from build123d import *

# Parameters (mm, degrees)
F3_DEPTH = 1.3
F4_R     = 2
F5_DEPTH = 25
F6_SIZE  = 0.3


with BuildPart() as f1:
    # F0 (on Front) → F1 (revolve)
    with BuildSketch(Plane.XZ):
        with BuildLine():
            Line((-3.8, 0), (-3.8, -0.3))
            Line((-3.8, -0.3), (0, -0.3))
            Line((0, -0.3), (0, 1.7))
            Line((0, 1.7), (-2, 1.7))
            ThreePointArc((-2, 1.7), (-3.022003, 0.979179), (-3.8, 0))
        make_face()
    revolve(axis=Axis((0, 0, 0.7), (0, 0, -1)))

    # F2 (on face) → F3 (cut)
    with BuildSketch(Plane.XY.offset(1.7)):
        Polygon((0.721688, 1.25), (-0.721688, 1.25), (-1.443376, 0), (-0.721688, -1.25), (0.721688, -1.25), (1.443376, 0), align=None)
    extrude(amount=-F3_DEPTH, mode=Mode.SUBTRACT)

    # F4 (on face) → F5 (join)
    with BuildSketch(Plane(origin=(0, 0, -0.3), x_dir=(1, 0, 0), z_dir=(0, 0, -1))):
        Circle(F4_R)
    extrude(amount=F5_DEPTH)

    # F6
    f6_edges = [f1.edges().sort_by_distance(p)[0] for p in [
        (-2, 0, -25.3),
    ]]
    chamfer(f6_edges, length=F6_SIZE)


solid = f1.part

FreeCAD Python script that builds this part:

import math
import FreeCAD as App
import Part
import Sketcher
Q = App.Units.Quantity


def edges_at(feature, points):
    """Names of the edges that pass closest to the given points."""
    edges = feature.Shape.Edges
    near = lambda p: min(range(len(edges)), key=lambda i: edges[i].distToShape(Part.Vertex(*p))[0])
    return sorted({f"Edge{near(p) + 1}" for p in points})


def add_polygon(sketch, points):
    """Adds a closed chain of lines whose ends are joined by coincident constraints."""
    first, n = sketch.GeometryCount, len(points)
    for a, b in zip(points, points[1:] + points[:1]):
        sketch.addGeometry(Part.LineSegment(App.Vector(*a, 0), App.Vector(*b, 0)), False)
    for i in range(n):
        sketch.addConstraint(Sketcher.Constraint("Coincident", first + i, 2, first + (i + 1) % n, 1))

doc = App.newDocument("Part")
params = doc.addObject("Spreadsheet::Sheet", "Params")
for row, (alias, value) in enumerate([
    ("sketch1_width", "2 mm"),
    ("sketch1_width2", "3.8 mm"),
    ("sketch1_height", "0.3 mm"),
    ("revolution_angle", "360 deg"),
    ("pocket1_length", "1.3 mm"),
    ("sketch3_diameter", "4 mm"),
    ("pad1_length", "25 mm"),
    ("chamfer_size", "0.3 mm"),
], start=1):
    params.set(f"A{row}", alias)
    params.set(f"B{row}", "=" + value)
    params.setAlias(f"B{row}", alias)

body = doc.addObject("PartDesign::Body", "Body")

sketch1 = doc.addObject("Sketcher::SketchObject", "Sketch")
body.addObject(sketch1)
sketch1.AttachmentSupport = (doc.XZ_Plane, [""])
sketch1.MapMode = "FlatFace"
sketch1.addGeometry(Part.LineSegment(App.Vector(-3.8, 0, 0), App.Vector(-3.8, -0.3, 0)), False)
sketch1.addGeometry(Part.LineSegment(App.Vector(-3.8, -0.3, 0), App.Vector(0, -0.3, 0)), False)
sketch1.addGeometry(Part.LineSegment(App.Vector(0, -0.3, 0), App.Vector(0, 1.7, 0)), False)
sketch1.addGeometry(Part.LineSegment(App.Vector(0, 1.7, 0), App.Vector(-2, 1.7, 0)), False)
sketch1.addGeometry(Part.ArcOfCircle(Part.Circle(App.Vector(0, -2.22, 0), App.Vector(0, 0, 1), 4.4), math.radians(117), math.radians(150)), False)
sketch1.addConstraint(Sketcher.Constraint("Coincident", 0, 2, 1, 1))
sketch1.addConstraint(Sketcher.Constraint("Coincident", 1, 2, 2, 1))
sketch1.addConstraint(Sketcher.Constraint("Coincident", 2, 2, 3, 1))
sketch1.addConstraint(Sketcher.Constraint("Coincident", 3, 2, 4, 1))
sketch1.addConstraint(Sketcher.Constraint("Coincident", 4, 2, 0, 1))
sketch1.addConstraint(Sketcher.Constraint("Vertical", 0))
sketch1.addConstraint(Sketcher.Constraint("Horizontal", 1))
sketch1.addConstraint(Sketcher.Constraint("Vertical", 2))
sketch1.addConstraint(Sketcher.Constraint("Horizontal", 3))
sketch1.addConstraint(Sketcher.Constraint("PointOnObject", 4, 3, -2))
sketch1.addConstraint(Sketcher.Constraint("PointOnObject", 1, 2, -2))
sketch1.addConstraint(Sketcher.Constraint("PointOnObject", 4, 2, -1))
sketch1.addConstraint(Sketcher.Constraint("Equal", 3, 2))
sketch1.addConstraint(Sketcher.Constraint("DistanceX", 3, 2, 3, 1, Q("2 mm")))
sketch1.addConstraint(Sketcher.Constraint("DistanceX", 1, 1, 1, 2, Q("3.8 mm")))
sketch1.addConstraint(Sketcher.Constraint("DistanceY", 0, 2, 0, 1, Q("0.3 mm")))
sketch1.setExpression("Constraints[13]", "Params.sketch1_width")
sketch1.setExpression("Constraints[14]", "Params.sketch1_width2")
sketch1.setExpression("Constraints[15]", "Params.sketch1_height")
revolution = doc.addObject("PartDesign::Revolution", "Revolution")
body.addObject(revolution)
revolution.Profile = sketch1
revolution.ReferenceAxis = (sketch1, ["V_Axis"])
revolution.setExpression("Angle", "Params.revolution_angle")

sketch2 = doc.addObject("Sketcher::SketchObject", "Sketch001")
body.addObject(sketch2)
sketch2.AttachmentSupport = (doc.XY_Plane, [""])
sketch2.MapMode = "FlatFace"
sketch2.AttachmentOffset = App.Placement(App.Vector(0, 0, 1.7), App.Rotation())
add_polygon(sketch2, [(0.7, 1.2), (-0.7, 1.2), (-1.4, 0), (-0.7, -1.2), (0.7, -1.2), (1.4, 0)])
sketch2.addConstraint(Sketcher.Constraint("Horizontal", 0))
sketch2.addConstraint(Sketcher.Constraint("Horizontal", 3))
sketch2.addConstraint(Sketcher.Constraint("Symmetric", 0, 2, 3, 2, -1, 1))
sketch2.addConstraint(Sketcher.Constraint("Symmetric", 1, 2, 4, 2, -1, 1))
sketch2.addConstraint(Sketcher.Constraint("PointOnObject", 1, 2, -1))
sketch2.addConstraint(Sketcher.Constraint("Parallel", 2, 5))
sketch2.addConstraint(Sketcher.Constraint("Vertical", 0, 2, 2, 2))
sketch2.addConstraint(Sketcher.Constraint("Angle", 1, Q("-120.000006 deg")))
sketch2.addConstraint(Sketcher.Constraint("DistanceY", 2, 2, 0, 2, Q("2.5 mm")))
sketch2.addConstraint(Sketcher.Constraint("DistanceX", 0, 2, 0, 1, Q("1.443376 mm")))
pocket1 = doc.addObject("PartDesign::Pocket", "Pocket")
body.addObject(pocket1)
pocket1.Profile = sketch2
pocket1.setExpression("Length", "Params.pocket1_length")

sketch3 = doc.addObject("Sketcher::SketchObject", "Sketch002")
body.addObject(sketch3)
sketch3.AttachmentSupport = (doc.XY_Plane, [""])
sketch3.MapMode = "FlatFace"
sketch3.AttachmentOffset = App.Placement(App.Vector(0, 0, -0.3), App.Rotation())
sketch3.addGeometry(Part.Circle(App.Vector(0, 0, 0), App.Vector(0, 0, 1), 2), False)
sketch3.addConstraint(Sketcher.Constraint("Coincident", 0, 3, -1, 1))
sketch3.addConstraint(Sketcher.Constraint("Diameter", 0, Q("4 mm")))
sketch3.setExpression("Constraints[1]", "Params.sketch3_diameter")
pad1 = doc.addObject("PartDesign::Pad", "Pad")
body.addObject(pad1)
pad1.Profile = sketch3
pad1.setExpression("Length", "Params.pad1_length")
pad1.Reversed = True
doc.recompute()

chamfer = doc.addObject("PartDesign::Chamfer", "Chamfer")
body.addObject(chamfer)
chamfer.Base = (pad1, edges_at(pad1, [(-2, 0, -25.3)]))
chamfer.setExpression("Size", "Params.chamfer_size")

doc.recompute()
